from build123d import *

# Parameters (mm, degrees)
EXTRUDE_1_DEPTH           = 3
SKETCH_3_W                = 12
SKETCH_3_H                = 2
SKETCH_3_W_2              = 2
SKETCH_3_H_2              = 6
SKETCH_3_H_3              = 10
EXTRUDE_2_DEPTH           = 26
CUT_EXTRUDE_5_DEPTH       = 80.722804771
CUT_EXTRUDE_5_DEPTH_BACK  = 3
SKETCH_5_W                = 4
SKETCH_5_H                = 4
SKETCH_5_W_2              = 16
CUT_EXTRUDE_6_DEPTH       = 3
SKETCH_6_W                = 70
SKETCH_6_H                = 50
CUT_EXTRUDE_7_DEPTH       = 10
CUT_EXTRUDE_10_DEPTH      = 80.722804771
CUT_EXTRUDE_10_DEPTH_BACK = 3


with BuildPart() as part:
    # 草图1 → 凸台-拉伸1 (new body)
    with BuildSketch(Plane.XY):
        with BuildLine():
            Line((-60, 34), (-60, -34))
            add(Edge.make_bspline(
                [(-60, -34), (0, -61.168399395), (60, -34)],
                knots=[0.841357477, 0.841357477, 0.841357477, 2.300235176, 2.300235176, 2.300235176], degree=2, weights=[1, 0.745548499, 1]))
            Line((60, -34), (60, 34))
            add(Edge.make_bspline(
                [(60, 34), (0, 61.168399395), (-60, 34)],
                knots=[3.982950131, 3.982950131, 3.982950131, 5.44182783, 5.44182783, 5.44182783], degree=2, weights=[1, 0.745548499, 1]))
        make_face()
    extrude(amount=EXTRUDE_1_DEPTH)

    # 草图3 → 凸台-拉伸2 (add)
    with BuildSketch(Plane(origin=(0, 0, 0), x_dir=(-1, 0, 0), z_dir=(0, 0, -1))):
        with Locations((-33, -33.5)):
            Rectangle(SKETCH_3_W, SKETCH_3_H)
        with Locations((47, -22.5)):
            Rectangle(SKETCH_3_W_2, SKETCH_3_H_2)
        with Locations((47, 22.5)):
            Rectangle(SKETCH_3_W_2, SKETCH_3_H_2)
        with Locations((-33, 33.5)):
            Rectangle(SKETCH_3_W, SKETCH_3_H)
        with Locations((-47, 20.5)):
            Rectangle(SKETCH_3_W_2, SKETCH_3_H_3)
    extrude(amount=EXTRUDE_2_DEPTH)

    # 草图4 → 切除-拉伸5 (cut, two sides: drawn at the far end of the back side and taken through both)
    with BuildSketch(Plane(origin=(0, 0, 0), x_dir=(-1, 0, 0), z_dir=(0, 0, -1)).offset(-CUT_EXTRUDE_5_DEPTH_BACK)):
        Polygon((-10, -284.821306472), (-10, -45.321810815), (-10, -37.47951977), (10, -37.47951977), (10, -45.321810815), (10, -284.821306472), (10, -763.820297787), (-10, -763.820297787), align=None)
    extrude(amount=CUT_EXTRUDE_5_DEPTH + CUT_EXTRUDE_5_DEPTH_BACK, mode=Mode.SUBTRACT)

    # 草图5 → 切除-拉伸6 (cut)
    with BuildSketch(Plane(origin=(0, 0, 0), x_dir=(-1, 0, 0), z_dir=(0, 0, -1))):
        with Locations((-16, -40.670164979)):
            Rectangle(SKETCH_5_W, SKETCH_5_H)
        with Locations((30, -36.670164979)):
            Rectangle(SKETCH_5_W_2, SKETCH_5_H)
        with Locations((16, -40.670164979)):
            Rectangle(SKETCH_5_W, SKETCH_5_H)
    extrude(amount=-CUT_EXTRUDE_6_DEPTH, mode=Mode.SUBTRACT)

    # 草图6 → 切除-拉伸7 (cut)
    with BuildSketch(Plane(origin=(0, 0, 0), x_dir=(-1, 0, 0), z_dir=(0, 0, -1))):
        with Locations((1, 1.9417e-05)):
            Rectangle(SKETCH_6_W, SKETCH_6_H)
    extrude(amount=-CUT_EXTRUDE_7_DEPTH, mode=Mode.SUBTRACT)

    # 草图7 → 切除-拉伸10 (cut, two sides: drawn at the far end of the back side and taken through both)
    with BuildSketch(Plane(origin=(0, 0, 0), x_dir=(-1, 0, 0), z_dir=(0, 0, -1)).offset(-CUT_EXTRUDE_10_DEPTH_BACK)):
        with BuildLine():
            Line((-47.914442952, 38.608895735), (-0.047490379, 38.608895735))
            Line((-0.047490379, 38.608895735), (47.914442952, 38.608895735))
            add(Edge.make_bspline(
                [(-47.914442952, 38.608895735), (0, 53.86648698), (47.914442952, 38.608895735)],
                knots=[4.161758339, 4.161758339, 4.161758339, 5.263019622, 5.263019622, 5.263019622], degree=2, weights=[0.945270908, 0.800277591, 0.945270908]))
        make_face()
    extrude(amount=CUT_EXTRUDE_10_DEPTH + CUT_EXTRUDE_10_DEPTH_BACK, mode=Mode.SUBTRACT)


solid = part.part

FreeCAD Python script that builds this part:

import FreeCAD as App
import Part
import Sketcher

V = App.Vector

doc = App.newDocument("Part")
body = doc.addObject("PartDesign::Body", "Body")

# Sketch on XY plane
sketch1 = doc.addObject("Sketcher::SketchObject", "Sketch")
body.addObject(sketch1)
sketch1.AttachmentSupport = (doc.XY_Plane, [""])
sketch1.MapMode = "FlatFace"
sketch1.addGeometry([
    Part.LineSegment(V(-60, 34, 0), V(-60, -34, 0)),
    Part.BSplineCurve([V(-60, -34, 0), V(0, -61.168399, 0), V(60, -34, 0)], [3, 3], [0.841357477, 2.300235176], False, 2, [1, 0.745548499, 1], False),
    Part.LineSegment(V(60, -34, 0), V(60, 34, 0)),
    Part.BSplineCurve([V(60, 34, 0), V(0, 61.168399, 0), V(-60, 34, 0)], [3, 3], [3.982950131, 5.44182783], False, 2, [1, 0.745548499, 1], False),
], False)
sketch1.addConstraint([
    Sketcher.Constraint("Block", 1),
    Sketcher.Constraint("Block", 3),
    Sketcher.Constraint("Coincident", 0, 2, 1, 1),
    Sketcher.Constraint("Coincident", 1, 2, 2, 1),
    Sketcher.Constraint("Coincident", 2, 2, 3, 1),
    Sketcher.Constraint("Coincident", 3, 2, 0, 1),
])
pad1 = doc.addObject("PartDesign::Pad", "Pad")
body.addObject(pad1)
pad1.Profile = sketch1
pad1.Length = 3

# Sketch on XY plane
sketch2 = doc.addObject("Sketcher::SketchObject", "Sketch001")
body.addObject(sketch2)
sketch2.AttachmentSupport = (doc.XY_Plane, [""])
sketch2.MapMode = "FlatFace"
sketch2.addGeometry([
    Part.LineSegment(V(39, -32.5, 0), V(39, -34.5, 0)),  # 0
    Part.LineSegment(V(39, -34.5, 0), V(27, -34.5, 0)),  # 1
    Part.LineSegment(V(27, -34.5, 0), V(27, -32.5, 0)),  # 2
    Part.LineSegment(V(27, -32.5, 0), V(39, -32.5, 0)),  # 3
    Part.LineSegment(V(-46, -19.5, 0), V(-46, -25.5, 0)),  # 4
    Part.LineSegment(V(-46, -25.5, 0), V(-48, -25.5, 0)),  # 5
    Part.LineSegment(V(-48, -25.5, 0), V(-48, -19.5, 0)),  # 6
    Part.LineSegment(V(-48, -19.5, 0), V(-46, -19.5, 0)),  # 7
    Part.LineSegment(V(-46, 25.5, 0), V(-46, 19.5, 0)),  # 8
    Part.LineSegment(V(-46, 19.5, 0), V(-48, 19.5, 0)),  # 9
    Part.LineSegment(V(-48, 19.5, 0), V(-48, 25.5, 0)),  # 10
    Part.LineSegment(V(-48, 25.5, 0), V(-46, 25.5, 0)),  # 11
    Part.LineSegment(V(39, 34.5, 0), V(39, 32.5, 0)),  # 12
    Part.LineSegment(V(39, 32.5, 0), V(27, 32.5, 0)),  # 13
    Part.LineSegment(V(27, 32.5, 0), V(27, 34.5, 0)),  # 14
    Part.LineSegment(V(27, 34.5, 0), V(39, 34.5, 0)),  # 15
    Part.LineSegment(V(48, 25.5, 0), V(48, 15.5, 0)),  # 16
    Part.LineSegment(V(48, 15.5, 0), V(46, 15.5, 0)),  # 17
    Part.LineSegment(V(46, 15.5, 0), V(46, 25.5, 0)),  # 18
    Part.LineSegment(V(46, 25.5, 0), V(48, 25.5, 0)),  # 19
], False)
sketch2.addConstraint([
    Sketcher.Constraint("Coincident", 0, 2, 1, 1),
    Sketcher.Constraint("Coincident", 1, 2, 2, 1),
    Sketcher.Constraint("Coincident", 2, 2, 3, 1),
    Sketcher.Constraint("Coincident", 3, 2, 0, 1),
    Sketcher.Constraint("Coincident", 4, 2, 5, 1),
    Sketcher.Constraint("Coincident", 5, 2, 6, 1),
    Sketcher.Constraint("Coincident", 6, 2, 7, 1),
    Sketcher.Constraint("Coincident", 7, 2, 4, 1),
    Sketcher.Constraint("Coincident", 8, 2, 9, 1),
    Sketcher.Constraint("Coincident", 9, 2, 10, 1),
    Sketcher.Constraint("Coincident", 10, 2, 11, 1),
    Sketcher.Constraint("Coincident", 11, 2, 8, 1),
    Sketcher.Constraint("Coincident", 12, 2, 13, 1),
    Sketcher.Constraint("Coincident", 13, 2, 14, 1),
    Sketcher.Constraint("Coincident", 14, 2, 15, 1),
    Sketcher.Constraint("Coincident", 15, 2, 12, 1),
    Sketcher.Constraint("Coincident", 16, 2, 17, 1),
    Sketcher.Constraint("Coincident", 17, 2, 18, 1),
    Sketcher.Constraint("Coincident", 18, 2, 19, 1),
    Sketcher.Constraint("Coincident", 19, 2, 16, 1),
    Sketcher.Constraint("Vertical", 0),
    Sketcher.Constraint("Horizontal", 1),
    Sketcher.Constraint("Vertical", 2),
    Sketcher.Constraint("Horizontal", 3),
    Sketcher.Constraint("Vertical", 4),
    Sketcher.Constraint("Horizontal", 5),
    Sketcher.Constraint("Vertical", 6),
    Sketcher.Constraint("Horizontal", 7),
    Sketcher.Constraint("Vertical", 8),
    Sketcher.Constraint("Horizontal", 9),
    Sketcher.Constraint("Vertical", 10),
    Sketcher.Constraint("Horizontal", 11),
    Sketcher.Constraint("Vertical", 12),
    Sketcher.Constraint("Horizontal", 13),
    Sketcher.Constraint("Vertical", 14),
    Sketcher.Constraint("Horizontal", 15),
    Sketcher.Constraint("Vertical", 16),
    Sketcher.Constraint("Horizontal", 17),
    Sketcher.Constraint("Vertical", 18),
    Sketcher.Constraint("Horizontal", 19),
    Sketcher.Constraint("Symmetric", 4, 2, 18, 2, -1, 1),
    Sketcher.Constraint("Symmetric", 11, 2, 18, 2, -2),
    Sketcher.Constraint("Symmetric", 6, 2, 9, 2, -1),
    Sketcher.Constraint("Symmetric", 3, 2, 12, 2, -1),
    Sketcher.Constraint("Symmetric", 1, 2, 14, 2, -1),
    Sketcher.Constraint("Equal", 11, 17),
    Sketcher.Constraint("Equal", 19, 0),
    Sketcher.Constraint("DistanceX", 1, 2, 1, 1, 12.0),
    Sketcher.Constraint("DistanceX", 5, 2, 5, 1, 2.0),
    Sketcher.Constraint("DistanceY", 4, 2, 4, 1, 6.0),
    Sketcher.Constraint("DistanceY", 16, 2, 16, 1, 10.0),
    Sketcher.Constraint("DistanceX", -1, 1, 0, 2, 39.0),
    Sketcher.Constraint("DistanceX", 4, 2, -1, 1, 46.0),
    Sketcher.Constraint("DistanceY", 2, 2, 4, 2, 7.0),
    Sketcher.Constraint("DistanceY", 7, 2, 8, 2, 39.0),
])
pad2 = doc.addObject("PartDesign::Pad", "Pad001")
body.addObject(pad2)
pad2.Profile = sketch2
pad2.Length = 26
pad2.Reversed = True

# Sketch on XY plane
sketch3 = doc.addObject("Sketcher::SketchObject", "Sketch002")
body.addObject(sketch3)
sketch3.AttachmentSupport = (doc.XY_Plane, [""])
sketch3.MapMode = "FlatFace"
sketch3.addGeometry([
    Part.LineSegment(V(10, -37, 0), V(10, -764, 0)),
    Part.LineSegment(V(10, -764, 0), V(-10, -764, 0)),
    Part.LineSegment(V(-10, -764, 0), V(-10, -37, 0)),
    Part.LineSegment(V(-10, -37, 0), V(10, -37, 0)),
], False)
sketch3.addConstraint([
    Sketcher.Constraint("Coincident", 0, 2, 1, 1),
    Sketcher.Constraint("Coincident", 1, 2, 2, 1),
    Sketcher.Constraint("Coincident", 2, 2, 3, 1),
    Sketcher.Constraint("Coincident", 3, 2, 0, 1),
    Sketcher.Constraint("Vertical", 0),
    Sketcher.Constraint("Horizontal", 1),
    Sketcher.Constraint("Vertical", 2),
    Sketcher.Constraint("Horizontal", 3),
    Sketcher.Constraint("DistanceX", 1, 2, 1, 1, 20.0),
    Sketcher.Constraint("DistanceX", -1, 1, 0, 2, 10.0),
    Sketcher.Constraint("DistanceY", 0, 2, 0, 1, 726.340778),
    Sketcher.Constraint("DistanceY", 2, 2, -1, 1, 37.47952),
])
pocket1 = doc.addObject("PartDesign::Pocket", "Pocket")
body.addObject(pocket1)
pocket1.Profile = sketch3
pocket1.Type = "ThroughAll"
pocket1.Midplane = True

# Sketch on XY plane
sketch4 = doc.addObject("Sketcher::SketchObject", "Sketch003")
body.addObject(sketch4)
sketch4.AttachmentSupport = (doc.XY_Plane, [""])
sketch4.MapMode = "FlatFace"
sketch4.addGeometry([
    Part.LineSegment(V(18, -38.7, 0), V(18, -42.7, 0)),  # 0
    Part.LineSegment(V(18, -42.7, 0), V(14, -42.7, 0)),  # 1
    Part.LineSegment(V(14, -42.7, 0), V(14, -38.7, 0)),  # 2
    Part.LineSegment(V(14, -38.7, 0), V(18, -38.7, 0)),  # 3
    Part.LineSegment(V(-22, -34.7, 0), V(-22, -38.7, 0)),  # 4
    Part.LineSegment(V(-22, -38.7, 0), V(-38, -38.7, 0)),  # 5
    Part.LineSegment(V(-38, -38.7, 0), V(-38, -34.7, 0)),  # 6
    Part.LineSegment(V(-38, -34.7, 0), V(-22, -34.7, 0)),  # 7
    Part.LineSegment(V(-14, -38.7, 0), V(-14, -42.7, 0)),  # 8
    Part.LineSegment(V(-14, -42.7, 0), V(-18, -42.7, 0)),  # 9
    Part.LineSegment(V(-18, -42.7, 0), V(-18, -38.7, 0)),  # 10
    Part.LineSegment(V(-18, -38.7, 0), V(-14, -38.7, 0)),  # 11
], False)
sketch4.addConstraint([
    Sketcher.Constraint("Coincident", 0, 2, 1, 1),
    Sketcher.Constraint("Coincident", 1, 2, 2, 1),
    Sketcher.Constraint("Coincident", 2, 2, 3, 1),
    Sketcher.Constraint("Coincident", 3, 2, 0, 1),
    Sketcher.Constraint("Coincident", 4, 2, 5, 1),
    Sketcher.Constraint("Coincident", 5, 2, 6, 1),
    Sketcher.Constraint("Coincident", 6, 2, 7, 1),
    Sketcher.Constraint("Coincident", 7, 2, 4, 1),
    Sketcher.Constraint("Coincident", 8, 2, 9, 1),
    Sketcher.Constraint("Coincident", 9, 2, 10, 1),
    Sketcher.Constraint("Coincident", 10, 2, 11, 1),
    Sketcher.Constraint("Coincident", 11, 2, 8, 1),
    Sketcher.Constraint("Vertical", 0),
    Sketcher.Constraint("Horizontal", 1),
    Sketcher.Constraint("Vertical", 2),
    Sketcher.Constraint("Horizontal", 3),
    Sketcher.Constraint("Vertical", 4),
    Sketcher.Constraint("Horizontal", 5),
    Sketcher.Constraint("Vertical", 6),
    Sketcher.Constraint("Horizontal", 7),
    Sketcher.Constraint("Vertical", 8),
    Sketcher.Constraint("Horizontal", 9),
    Sketcher.Constraint("Vertical", 10),
    Sketcher.Constraint("Horizontal", 11),
    Sketcher.Constraint("Symmetric", 1, 2, 8, 2, -2),
    Sketcher.Constraint("Symmetric", 3, 2, 10, 2, -2),
    Sketcher.Constraint("Horizontal", 3, 2, 4, 2),
    Sketcher.Constraint("Equal", 11, 0),
    Sketcher.Constraint("Equal", 2, 4),
    Sketcher.Constraint("DistanceX", 1, 2, 1, 1, 4.0),
    Sketcher.Constraint("DistanceX", 5, 2, 5, 1, 16.0),
    Sketcher.Constraint("DistanceX", -1, 1, 0, 2, 18.0),
    Sketcher.Constraint("DistanceX", 4, 2, -1, 1, 22.0),
    Sketcher.Constraint("DistanceY", 0, 2, -1, 1, 42.670165),
])
pocket2 = doc.addObject("PartDesign::Pocket", "Pocket001")
body.addObject(pocket2)
pocket2.Profile = sketch4
pocket2.Length = 3
pocket2.Reversed = True

# Sketch on XY plane
sketch5 = doc.addObject("Sketcher::SketchObject", "Sketch004")
body.addObject(sketch5)
sketch5.AttachmentSupport = (doc.XY_Plane, [""])
sketch5.MapMode = "FlatFace"
sketch5.addGeometry([
    Part.LineSegment(V(34, 25, 0), V(34, -25, 0)),
    Part.LineSegment(V(34, -25, 0), V(-36, -25, 0)),
    Part.LineSegment(V(-36, -25, 0), V(-36, 25, 0)),
    Part.LineSegment(V(-36, 25, 0), V(34, 25, 0)),
], False)
sketch5.addConstraint([
    Sketcher.Constraint("Coincident", 0, 2, 1, 1),
    Sketcher.Constraint("Coincident", 1, 2, 2, 1),
    Sketcher.Constraint("Coincident", 2, 2, 3, 1),
    Sketcher.Constraint("Coincident", 3, 2, 0, 1),
    Sketcher.Constraint("Vertical", 0),
    Sketcher.Constraint("Horizontal", 1),
    Sketcher.Constraint("Vertical", 2),
    Sketcher.Constraint("Horizontal", 3),
    Sketcher.Constraint("DistanceX", 1, 2, 1, 1, 70.0),
    Sketcher.Constraint("DistanceY", 0, 2, 0, 1, 50.0),
    Sketcher.Constraint("DistanceX", -1, 1, 0, 2, 34.0),
    Sketcher.Constraint("DistanceY", 0, 2, -1, 1, 24.999981),
])
pocket3 = doc.addObject("PartDesign::Pocket", "Pocket002")
body.addObject(pocket3)
pocket3.Profile = sketch5
pocket3.Length = 10
pocket3.Reversed = True

# Sketch on XY plane
sketch6 = doc.addObject("Sketcher::SketchObject", "Sketch005")
body.addObject(sketch6)
sketch6.AttachmentSupport = (doc.XY_Plane, [""])
sketch6.MapMode = "FlatFace"
sketch6.addGeometry([
    Part.LineSegment(V(47.914443, 38.608896, 0), V(-47.914443, 38.608896, 0)),
    Part.BSplineCurve([V(47.914443, 38.608896, 0), V(0, 53.866487, 0), V(-47.914443, 38.608896, 0)], [3, 3], [4.161758339, 5.263019622], False, 2, [0.945270908, 0.800277591, 0.945270908], False),
], False)
sketch6.addConstraint([
    Sketcher.Constraint("Block", 1),
    Sketcher.Constraint("Coincident", 0, 1, 1, 1),
    Sketcher.Constraint("Coincident", 1, 2, 0, 2),
])
pocket4 = doc.addObject("PartDesign::Pocket", "Pocket003")
body.addObject(pocket4)
pocket4.Profile = sketch6
pocket4.Type = "ThroughAll"
pocket4.Midplane = True

doc.recompute()
